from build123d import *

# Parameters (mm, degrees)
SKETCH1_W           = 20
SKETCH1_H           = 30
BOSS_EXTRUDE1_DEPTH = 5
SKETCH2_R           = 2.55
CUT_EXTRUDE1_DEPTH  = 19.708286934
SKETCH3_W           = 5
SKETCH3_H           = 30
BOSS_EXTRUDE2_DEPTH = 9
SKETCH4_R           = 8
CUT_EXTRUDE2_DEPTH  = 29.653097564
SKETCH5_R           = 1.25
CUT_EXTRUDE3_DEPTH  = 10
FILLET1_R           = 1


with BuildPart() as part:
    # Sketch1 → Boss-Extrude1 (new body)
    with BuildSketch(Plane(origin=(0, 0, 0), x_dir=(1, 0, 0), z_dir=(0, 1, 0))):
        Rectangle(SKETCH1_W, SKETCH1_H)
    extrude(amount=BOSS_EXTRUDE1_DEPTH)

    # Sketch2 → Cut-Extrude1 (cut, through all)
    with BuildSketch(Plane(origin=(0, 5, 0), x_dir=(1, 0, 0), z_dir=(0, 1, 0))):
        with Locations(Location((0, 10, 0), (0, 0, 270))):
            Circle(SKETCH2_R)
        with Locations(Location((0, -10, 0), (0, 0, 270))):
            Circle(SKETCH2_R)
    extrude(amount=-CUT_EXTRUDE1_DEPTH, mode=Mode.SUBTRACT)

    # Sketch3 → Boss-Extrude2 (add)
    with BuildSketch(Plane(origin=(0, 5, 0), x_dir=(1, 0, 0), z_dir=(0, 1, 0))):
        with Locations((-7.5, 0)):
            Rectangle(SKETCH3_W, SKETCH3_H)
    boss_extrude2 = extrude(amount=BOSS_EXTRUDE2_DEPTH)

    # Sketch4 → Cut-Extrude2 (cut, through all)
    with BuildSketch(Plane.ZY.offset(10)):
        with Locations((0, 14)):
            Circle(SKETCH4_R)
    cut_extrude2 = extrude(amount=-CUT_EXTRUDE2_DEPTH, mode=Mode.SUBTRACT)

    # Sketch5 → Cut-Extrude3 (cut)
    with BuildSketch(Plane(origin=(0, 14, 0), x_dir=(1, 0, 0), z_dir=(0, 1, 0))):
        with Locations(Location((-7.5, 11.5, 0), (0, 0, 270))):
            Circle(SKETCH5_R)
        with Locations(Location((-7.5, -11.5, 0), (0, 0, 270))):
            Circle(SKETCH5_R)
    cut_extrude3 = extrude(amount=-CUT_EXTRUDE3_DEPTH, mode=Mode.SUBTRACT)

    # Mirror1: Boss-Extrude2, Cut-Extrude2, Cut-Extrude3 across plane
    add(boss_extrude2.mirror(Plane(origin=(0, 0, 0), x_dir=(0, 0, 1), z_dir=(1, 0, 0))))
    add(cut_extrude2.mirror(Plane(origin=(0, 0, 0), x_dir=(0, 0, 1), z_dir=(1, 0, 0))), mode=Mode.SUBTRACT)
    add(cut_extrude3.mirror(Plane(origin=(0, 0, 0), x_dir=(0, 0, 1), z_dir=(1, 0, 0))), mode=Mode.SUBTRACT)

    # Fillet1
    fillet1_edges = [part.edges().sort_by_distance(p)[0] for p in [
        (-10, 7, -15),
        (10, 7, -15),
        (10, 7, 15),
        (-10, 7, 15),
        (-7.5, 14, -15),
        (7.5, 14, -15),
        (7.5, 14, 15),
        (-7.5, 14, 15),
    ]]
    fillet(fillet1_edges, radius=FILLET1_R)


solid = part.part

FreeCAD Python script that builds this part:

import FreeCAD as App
import Part
import Sketcher
from FreeCAD import Vector
Q = App.Units.Quantity


def edges_at(feature, points):
    """Names of the edges that pass closest to the given points."""
    edges = feature.Shape.Edges
    near = lambda p: min(range(len(edges)), key=lambda i: edges[i].distToShape(Part.Vertex(*p))[0])
    return sorted({f"Edge{near(p) + 1}" for p in points})


def add_polygon(sketch, points):
    """Adds a closed chain of lines whose ends are joined by coincident constraints."""
    first, n = sketch.GeometryCount, len(points)
    for a, b in zip(points, points[1:] + points[:1]):
        sketch.addGeometry(Part.LineSegment(App.Vector(*a, 0), App.Vector(*b, 0)), False)
    for i in range(n):
        sketch.addConstraint(Sketcher.Constraint("Coincident", first + i, 2, first + (i + 1) % n, 1))

doc = App.newDocument("Part")
body = doc.addObject("PartDesign::Body", "Body")

sketch1 = body.newObject("Sketcher::SketchObject", "Sketch")
sketch1.AttachmentSupport = (doc.getObject("XZ_Plane"), [""])
sketch1.MapMode = "FlatFace"
add_polygon(sketch1, [(-10, -15), (-10, 15), (10, 15), (10, -15)])
sketch1.addConstraint([
    Sketcher.Constraint("Vertical", 0),
    Sketcher.Constraint("Horizontal", 1),
    Sketcher.Constraint("Vertical", 2),
    Sketcher.Constraint("Horizontal", 3),
    Sketcher.Constraint("Symmetric", 0, 2, 2, 2, -1, 1),
    Sketcher.Constraint("DistanceX", 1, 1, 1, 2, Q("20 mm")),
    Sketcher.Constraint("DistanceY", 0, 1, 0, 2, Q("30 mm")),
])
pad1 = body.newObject("PartDesign::Pad", "Pad")
pad1.Profile = sketch1
pad1.Length = 5
pad1.Reversed = True

sketch2 = body.newObject("Sketcher::SketchObject", "Sketch001")
sketch2.AttachmentSupport = (doc.getObject("XZ_Plane"), [""])
sketch2.MapMode = "FlatFace"
sketch2.AttachmentOffset = App.Placement(Vector(0, 0, -5), App.Rotation())
sketch2.addGeometry([
    Part.Circle(Vector(0, -10, 0), Vector(0, 0, 1), 2.5),
    Part.Circle(Vector(0, 10, 0), Vector(0, 0, 1), 2.5),
], False)
sketch2.addConstraint([
    Sketcher.Constraint("Equal", 0, 1),
    Sketcher.Constraint("Symmetric", 0, 3, 1, 3, -1, 1),
    Sketcher.Constraint("PointOnObject", 0, 3, -2),
    Sketcher.Constraint("Diameter", 0, Q("5.1 mm")),
    Sketcher.Constraint("DistanceY", 0, 3, -1, 1, Q("10 mm")),
])
pocket1 = body.newObject("PartDesign::Pocket", "Pocket")
pocket1.Profile = sketch2
pocket1.Type = "ThroughAll"
pocket1.Reversed = True

sketch3 = body.newObject("Sketcher::SketchObject", "Sketch002")
sketch3.AttachmentSupport = (doc.getObject("XZ_Plane"), [""])
sketch3.MapMode = "FlatFace"
sketch3.AttachmentOffset = App.Placement(Vector(0, 0, -5), App.Rotation())
add_polygon(sketch3, [(-10, -15), (-10, 15), (-5, 15), (-5, -15)])
sketch3.addConstraint([
    Sketcher.Constraint("Vertical", 0),
    Sketcher.Constraint("Horizontal", 1),
    Sketcher.Constraint("Vertical", 2),
    Sketcher.Constraint("Horizontal", 3),
    Sketcher.Constraint("DistanceX", 1, 1, 1, 2, Q("5 mm")),
    Sketcher.Constraint("DistanceY", 0, 1, 0, 2, Q("30 mm")),
    Sketcher.Constraint("DistanceX", 0, 2, -1, 1, Q("10 mm")),
    Sketcher.Constraint("DistanceY", -1, 1, 0, 2, Q("15 mm")),
])
pad2 = body.newObject("PartDesign::Pad", "Pad001")
pad2.Profile = sketch3
pad2.Length = 9
pad2.Reversed = True

sketch4 = body.newObject("Sketcher::SketchObject", "Sketch003")
sketch4.AttachmentSupport = (doc.getObject("YZ_Plane"), [""])
sketch4.MapMode = "FlatFace"
sketch4.AttachmentOffset = App.Placement(Vector(0, 0, -10), App.Rotation())
sketch4.addGeometry(Part.Circle(Vector(14, 0, 0), Vector(0, 0, 1), 8), False)
sketch4.addConstraint([
    Sketcher.Constraint("PointOnObject", 0, 3, -1),
    Sketcher.Constraint("Diameter", 0, Q("16 mm")),
    Sketcher.Constraint("DistanceX", -1, 1, 0, 3, Q("14 mm")),
])
pocket2 = body.newObject("PartDesign::Pocket", "Pocket001")
pocket2.Profile = sketch4
pocket2.Type = "ThroughAll"
pocket2.Reversed = True

sketch5 = body.newObject("Sketcher::SketchObject", "Sketch004")
sketch5.AttachmentSupport = (doc.getObject("XZ_Plane"), [""])
sketch5.MapMode = "FlatFace"
sketch5.AttachmentOffset = App.Placement(Vector(0, 0, -14), App.Rotation())
sketch5.addGeometry([
    Part.Circle(Vector(-7.5, -11.5, 0), Vector(0, 0, 1), 1.2),
    Part.Circle(Vector(-7.5, 11.5, 0), Vector(0, 0, 1), 1.2),
], False)
sketch5.addConstraint([
    Sketcher.Constraint("Equal", 0, 1),
    Sketcher.Constraint("Symmetric", 0, 3, 1, 3, -1),
    Sketcher.Constraint("Diameter", 0, Q("2.5 mm")),
    Sketcher.Constraint("DistanceY", 0, 3, 1, 3, Q("23 mm")),
    Sketcher.Constraint("DistanceX", 0, 3, -1, 1, Q("7.5 mm")),
])
pocket3 = body.newObject("PartDesign::Pocket", "Pocket002")
pocket3.Profile = sketch5
pocket3.Length = 10
pocket3.Reversed = True
doc.recompute()

mirrored = body.newObject("PartDesign::Mirrored", "Mirrored")
mirrored.Originals = [pad2, pocket2, pocket3]
mirrored.MirrorPlane = (doc.getObject("YZ_Plane"), [""])
body.Tip = mirrored
doc.recompute()

fillet = body.newObject("PartDesign::Fillet", "Fillet")
fillet.Base = (mirrored, edges_at(mirrored, [
    (-10, 7, -15),
    (10, 7, -15),
    (10, 7, 15),
    (-10, 7, 15),
    (-7.5, 14, -15),
    (7.5, 14, -15),
    (7.5, 14, 15),
    (-7.5, 14, 15),
]))
fillet.Radius = 1

doc.recompute()
